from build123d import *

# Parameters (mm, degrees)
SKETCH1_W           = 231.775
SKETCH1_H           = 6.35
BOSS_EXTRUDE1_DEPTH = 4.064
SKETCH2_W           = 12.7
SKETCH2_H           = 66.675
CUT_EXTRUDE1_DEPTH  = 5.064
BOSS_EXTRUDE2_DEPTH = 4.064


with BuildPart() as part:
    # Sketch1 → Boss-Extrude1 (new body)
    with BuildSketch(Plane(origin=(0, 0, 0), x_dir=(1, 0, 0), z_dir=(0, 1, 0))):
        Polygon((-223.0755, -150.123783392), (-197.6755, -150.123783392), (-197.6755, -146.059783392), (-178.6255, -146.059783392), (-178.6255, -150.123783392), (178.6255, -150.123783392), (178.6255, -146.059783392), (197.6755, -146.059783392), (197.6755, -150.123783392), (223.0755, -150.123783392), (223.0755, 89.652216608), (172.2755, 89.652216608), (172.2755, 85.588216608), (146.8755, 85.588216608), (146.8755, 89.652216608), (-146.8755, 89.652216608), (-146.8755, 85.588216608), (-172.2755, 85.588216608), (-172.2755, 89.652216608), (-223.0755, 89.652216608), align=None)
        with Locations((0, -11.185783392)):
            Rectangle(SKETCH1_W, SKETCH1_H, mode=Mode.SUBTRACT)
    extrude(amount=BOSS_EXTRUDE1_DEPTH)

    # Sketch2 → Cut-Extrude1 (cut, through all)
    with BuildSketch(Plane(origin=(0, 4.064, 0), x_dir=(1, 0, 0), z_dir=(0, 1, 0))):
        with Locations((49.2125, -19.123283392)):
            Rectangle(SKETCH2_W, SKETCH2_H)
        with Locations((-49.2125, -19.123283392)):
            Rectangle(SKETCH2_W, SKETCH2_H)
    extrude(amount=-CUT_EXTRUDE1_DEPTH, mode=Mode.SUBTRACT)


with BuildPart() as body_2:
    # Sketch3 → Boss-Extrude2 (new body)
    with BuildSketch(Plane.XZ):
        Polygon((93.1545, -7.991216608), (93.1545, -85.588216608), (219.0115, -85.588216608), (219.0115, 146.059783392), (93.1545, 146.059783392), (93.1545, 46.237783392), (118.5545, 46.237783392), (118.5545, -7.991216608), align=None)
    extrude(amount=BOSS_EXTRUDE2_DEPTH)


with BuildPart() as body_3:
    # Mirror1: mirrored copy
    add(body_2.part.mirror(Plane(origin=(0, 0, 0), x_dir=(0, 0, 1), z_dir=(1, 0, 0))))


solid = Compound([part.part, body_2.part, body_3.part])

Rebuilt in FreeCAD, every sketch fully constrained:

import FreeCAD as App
import Part
import Sketcher

V = App.Vector
Q = App.Units.Quantity

doc = App.newDocument("Part")
body = doc.addObject("PartDesign::Body", "Body")

# Sketch on XZ plane
sketch1 = doc.addObject("Sketcher::SketchObject", "Sketch")
body.addObject(sketch1)
sketch1.AttachmentSupport = (doc.XZ_Plane, [""])
sketch1.MapMode = "FlatFace"
sketch1.addGeometry(Part.LineSegment(V(-223.1, 150.1, 0), V(-197.7, 150.1, 0)), False)
sketch1.addGeometry(Part.LineSegment(V(-197.7, 150.1, 0), V(-197.7, 146.1, 0)), False)
sketch1.addGeometry(Part.LineSegment(V(-197.7, 146.1, 0), V(-178.6, 146.1, 0)), False)
sketch1.addGeometry(Part.LineSegment(V(-178.6, 146.1, 0), V(-178.6, 150.1, 0)), False)
sketch1.addGeometry(Part.LineSegment(V(-178.6, 150.1, 0), V(178.6, 150.1, 0)), False)
sketch1.addGeometry(Part.LineSegment(V(178.6, 150.1, 0), V(178.6, 146.1, 0)), False)
sketch1.addGeometry(Part.LineSegment(V(178.6, 146.1, 0), V(197.7, 146.1, 0)), False)
sketch1.addGeometry(Part.LineSegment(V(197.7, 146.1, 0), V(197.7, 150.1, 0)), False)
sketch1.addGeometry(Part.LineSegment(V(197.7, 150.1, 0), V(223.1, 150.1, 0)), False)
sketch1.addGeometry(Part.LineSegment(V(223.1, 150.1, 0), V(223.1, -89.7, 0)), False)
sketch1.addGeometry(Part.LineSegment(V(223.1, -89.7, 0), V(172.3, -89.7, 0)), False)
sketch1.addGeometry(Part.LineSegment(V(172.3, -89.7, 0), V(172.3, -85.6, 0)), False)
sketch1.addGeometry(Part.LineSegment(V(172.3, -85.6, 0), V(146.9, -85.6, 0)), False)
sketch1.addGeometry(Part.LineSegment(V(146.9, -85.6, 0), V(146.9, -89.7, 0)), False)
sketch1.addGeometry(Part.LineSegment(V(146.9, -89.7, 0), V(-146.9, -89.7, 0)), False)
sketch1.addGeometry(Part.LineSegment(V(-146.9, -89.7, 0), V(-146.9, -85.6, 0)), False)
sketch1.addGeometry(Part.LineSegment(V(-146.9, -85.6, 0), V(-172.3, -85.6, 0)), False)
sketch1.addGeometry(Part.LineSegment(V(-172.3, -85.6, 0), V(-172.3, -89.7, 0)), False)
sketch1.addGeometry(Part.LineSegment(V(-172.3, -89.7, 0), V(-223.1, -89.7, 0)), False)
sketch1.addGeometry(Part.LineSegment(V(-223.1, -89.7, 0), V(-223.1, 150.1, 0)), False)
sketch1.addGeometry(Part.LineSegment(V(115.9, 14.4, 0), V(-115.9, 14.4, 0)), False)
sketch1.addGeometry(Part.LineSegment(V(-115.9, 14.4, 0), V(-115.9, 8, 0)), False)
sketch1.addGeometry(Part.LineSegment(V(-115.9, 8, 0), V(115.9, 8, 0)), False)
sketch1.addGeometry(Part.LineSegment(V(115.9, 8, 0), V(115.9, 14.4, 0)), False)
sketch1.addConstraint(Sketcher.Constraint("Coincident", 0, 2, 1, 1))
sketch1.addConstraint(Sketcher.Constraint("Coincident", 1, 2, 2, 1))
sketch1.addConstraint(Sketcher.Constraint("Coincident", 2, 2, 3, 1))
sketch1.addConstraint(Sketcher.Constraint("Coincident", 3, 2, 4, 1))
sketch1.addConstraint(Sketcher.Constraint("Coincident", 4, 2, 5, 1))
sketch1.addConstraint(Sketcher.Constraint("Coincident", 5, 2, 6, 1))
sketch1.addConstraint(Sketcher.Constraint("Coincident", 6, 2, 7, 1))
sketch1.addConstraint(Sketcher.Constraint("Coincident", 7, 2, 8, 1))
sketch1.addConstraint(Sketcher.Constraint("Coincident", 8, 2, 9, 1))
sketch1.addConstraint(Sketcher.Constraint("Coincident", 9, 2, 10, 1))
sketch1.addConstraint(Sketcher.Constraint("Coincident", 10, 2, 11, 1))
sketch1.addConstraint(Sketcher.Constraint("Coincident", 11, 2, 12, 1))
sketch1.addConstraint(Sketcher.Constraint("Coincident", 12, 2, 13, 1))
sketch1.addConstraint(Sketcher.Constraint("Coincident", 13, 2, 14, 1))
sketch1.addConstraint(Sketcher.Constraint("Coincident", 14, 2, 15, 1))
sketch1.addConstraint(Sketcher.Constraint("Coincident", 15, 2, 16, 1))
sketch1.addConstraint(Sketcher.Constraint("Coincident", 16, 2, 17, 1))
sketch1.addConstraint(Sketcher.Constraint("Coincident", 17, 2, 18, 1))
sketch1.addConstraint(Sketcher.Constraint("Coincident", 18, 2, 19, 1))
sketch1.addConstraint(Sketcher.Constraint("Coincident", 19, 2, 0, 1))
sketch1.addConstraint(Sketcher.Constraint("Coincident", 20, 2, 21, 1))
sketch1.addConstraint(Sketcher.Constraint("Coincident", 21, 2, 22, 1))
sketch1.addConstraint(Sketcher.Constraint("Coincident", 22, 2, 23, 1))
sketch1.addConstraint(Sketcher.Constraint("Coincident", 23, 2, 20, 1))
sketch1.addConstraint(Sketcher.Constraint("Horizontal", 0))
sketch1.addConstraint(Sketcher.Constraint("Vertical", 1))
sketch1.addConstraint(Sketcher.Constraint("Horizontal", 2))
sketch1.addConstraint(Sketcher.Constraint("Vertical", 3))
sketch1.addConstraint(Sketcher.Constraint("Horizontal", 4))
sketch1.addConstraint(Sketcher.Constraint("Vertical", 5))
sketch1.addConstraint(Sketcher.Constraint("Horizontal", 6))
sketch1.addConstraint(Sketcher.Constraint("Vertical", 7))
sketch1.addConstraint(Sketcher.Constraint("Horizontal", 8))
sketch1.addConstraint(Sketcher.Constraint("Vertical", 9))
sketch1.addConstraint(Sketcher.Constraint("Horizontal", 10))
sketch1.addConstraint(Sketcher.Constraint("Vertical", 11))
sketch1.addConstraint(Sketcher.Constraint("Horizontal", 12))
sketch1.addConstraint(Sketcher.Constraint("Vertical", 13))
sketch1.addConstraint(Sketcher.Constraint("Horizontal", 14))
sketch1.addConstraint(Sketcher.Constraint("Vertical", 15))
sketch1.addConstraint(Sketcher.Constraint("Horizontal", 16))
sketch1.addConstraint(Sketcher.Constraint("Vertical", 17))
sketch1.addConstraint(Sketcher.Constraint("Horizontal", 18))
sketch1.addConstraint(Sketcher.Constraint("Vertical", 19))
sketch1.addConstraint(Sketcher.Constraint("Horizontal", 20))
sketch1.addConstraint(Sketcher.Constraint("Vertical", 21))
sketch1.addConstraint(Sketcher.Constraint("Horizontal", 22))
sketch1.addConstraint(Sketcher.Constraint("Vertical", 23))
sketch1.addConstraint(Sketcher.Constraint("Symmetric", 2, 2, 5, 2, -2))
sketch1.addConstraint(Sketcher.Constraint("Symmetric", 0, 2, 7, 2, -2))
sketch1.addConstraint(Sketcher.Constraint("Symmetric", 12, 2, 15, 2, -2))
sketch1.addConstraint(Sketcher.Constraint("Symmetric", 10, 2, 17, 2, -2))
sketch1.addConstraint(Sketcher.Constraint("Horizontal", 0, 2, 3, 2))
sketch1.addConstraint(Sketcher.Constraint("Horizontal", 10, 2, 13, 2))
sketch1.addConstraint(Sketcher.Constraint("Equal", 0, 8))
sketch1.addConstraint(Sketcher.Constraint("Equal", 8, 12))
sketch1.addConstraint(Sketcher.Constraint("Equal", 7, 11))
sketch1.addConstraint(Sketcher.Constraint("DistanceX", 0, 1, 0, 2, Q("1 in")))
sketch1.addConstraint(Sketcher.Constraint("DistanceX", 10, 2, 10, 1, Q("2 in")))
sketch1.addConstraint(Sketcher.Constraint("DistanceX", 2, 1, 2, 2, Q("0.75 in")))
sketch1.addConstraint(Sketcher.Constraint("DistanceY", 1, 2, 1, 1, Q("0.16 in")))
sketch1.addConstraint(Sketcher.Constraint("DistanceY", 9, 2, 9, 1, Q("9.44 in")))
sketch1.addConstraint(Sketcher.Constraint("DistanceY", 21, 2, 21, 1, Q("0.25 in")))
sketch1.addConstraint(Sketcher.Constraint("DistanceX", 4, 1, 4, 2, Q("14.065 in")))
sketch1.addConstraint(Sketcher.Constraint("DistanceX", 20, 2, 20, 1, Q("9.125 in")))
sketch1.addConstraint(Sketcher.Constraint("DistanceX", 15, 2, 20, 2, Q("1.22 in")))
sketch1.addConstraint(Sketcher.Constraint("DistanceY", 15, 2, 20, 2, Q("3.935 in")))
sketch1.addConstraint(Sketcher.Constraint("DistanceY", -1, 1, 0, 2, 150.123783))
pad1 = doc.addObject("PartDesign::Pad", "Pad")
body.addObject(pad1)
pad1.Profile = sketch1
pad1.Length = Q("0.16 in")
pad1.Reversed = True

# Sketch on XZ plane
sketch2 = doc.addObject("Sketcher::SketchObject", "Sketch001")
body.addObject(sketch2)
sketch2.AttachmentSupport = (doc.XZ_Plane, [""])
sketch2.MapMode = "FlatFace"
sketch2.AttachmentOffset = App.Placement(V(0, 0, -0.16 * 25.4), App.Rotation())
sketch2.addGeometry(Part.LineSegment(V(43, -14, 0), V(43, 52, 0)), False)
sketch2.addGeometry(Part.LineSegment(V(43, 52, 0), V(56, 52, 0)), False)
sketch2.addGeometry(Part.LineSegment(V(56, 52, 0), V(56, -14, 0)), False)
sketch2.addGeometry(Part.LineSegment(V(56, -14, 0), V(43, -14, 0)), False)
sketch2.addGeometry(Part.LineSegment(V(-56, -14, 0), V(-56, 52, 0)), False)
sketch2.addGeometry(Part.LineSegment(V(-56, 52, 0), V(-43, 52, 0)), False)
sketch2.addGeometry(Part.LineSegment(V(-43, 52, 0), V(-43, -14, 0)), False)
sketch2.addGeometry(Part.LineSegment(V(-43, -14, 0), V(-56, -14, 0)), False)
sketch2.addConstraint(Sketcher.Constraint("Coincident", 0, 2, 1, 1))
sketch2.addConstraint(Sketcher.Constraint("Coincident", 1, 2, 2, 1))
sketch2.addConstraint(Sketcher.Constraint("Coincident", 2, 2, 3, 1))
sketch2.addConstraint(Sketcher.Constraint("Coincident", 3, 2, 0, 1))
sketch2.addConstraint(Sketcher.Constraint("Coincident", 4, 2, 5, 1))
sketch2.addConstraint(Sketcher.Constraint("Coincident", 5, 2, 6, 1))
sketch2.addConstraint(Sketcher.Constraint("Coincident", 6, 2, 7, 1))
sketch2.addConstraint(Sketcher.Constraint("Coincident", 7, 2, 4, 1))
sketch2.addConstraint(Sketcher.Constraint("Vertical", 0))
sketch2.addConstraint(Sketcher.Constraint("Horizontal", 1))
sketch2.addConstraint(Sketcher.Constraint("Vertical", 2))
sketch2.addConstraint(Sketcher.Constraint("Horizontal", 3))
sketch2.addConstraint(Sketcher.Constraint("Vertical", 4))
sketch2.addConstraint(Sketcher.Constraint("Horizontal", 5))
sketch2.addConstraint(Sketcher.Constraint("Vertical", 6))
sketch2.addConstraint(Sketcher.Constraint("Horizontal", 7))
sketch2.addConstraint(Sketcher.Constraint("Symmetric", 1, 2, 4, 2, -2))
sketch2.addConstraint(Sketcher.Constraint("Symmetric", 3, 2, 6, 2, -2))
sketch2.addConstraint(Sketcher.Constraint("DistanceX", 1, 1, 1, 2, Q("0.5 in")))
sketch2.addConstraint(Sketcher.Constraint("DistanceY", 0, 1, 0, 2, Q("2.625 in")))
sketch2.addConstraint(Sketcher.Constraint("DistanceX", -1, 1, 0, 2, Q("1.6875 in")))
sketch2.addConstraint(Sketcher.Constraint("DistanceY", -1, 1, 0, 2, 52.460783))
pocket1 = doc.addObject("PartDesign::Pocket", "Pocket")
body.addObject(pocket1)
pocket1.Profile = sketch2
pocket1.Type = "ThroughAll"
pocket1.Reversed = True
body2 = doc.addObject("PartDesign::Body", "Body001")

# Sketch on XZ plane
sketch3 = doc.addObject("Sketcher::SketchObject", "Sketch002")
body2.addObject(sketch3)
sketch3.AttachmentSupport = (doc.getObject("XZ_Plane001"), [""])
sketch3.MapMode = "FlatFace"
sketch3.addGeometry(Part.LineSegment(V(93, -8, 0), V(93, -86, 0)), False)
sketch3.addGeometry(Part.LineSegment(V(93, -86, 0), V(219, -86, 0)), False)
sketch3.addGeometry(Part.LineSegment(V(219, -86, 0), V(219, 146, 0)), False)
sketch3.addGeometry(Part.LineSegment(V(219, 146, 0), V(93, 146, 0)), False)
sketch3.addGeometry(Part.LineSegment(V(93, 146, 0), V(93, 46, 0)), False)
sketch3.addGeometry(Part.LineSegment(V(93, 46, 0), V(119, 46, 0)), False)
sketch3.addGeometry(Part.LineSegment(V(119, 46, 0), V(119, -8, 0)), False)
sketch3.addGeometry(Part.LineSegment(V(119, -8, 0), V(93, -8, 0)), False)
sketch3.addConstraint(Sketcher.Constraint("Coincident", 0, 2, 1, 1))
sketch3.addConstraint(Sketcher.Constraint("Coincident", 1, 2, 2, 1))
sketch3.addConstraint(Sketcher.Constraint("Coincident", 2, 2, 3, 1))
sketch3.addConstraint(Sketcher.Constraint("Coincident", 3, 2, 4, 1))
sketch3.addConstraint(Sketcher.Constraint("Coincident", 4, 2, 5, 1))
sketch3.addConstraint(Sketcher.Constraint("Coincident", 5, 2, 6, 1))
sketch3.addConstraint(Sketcher.Constraint("Coincident", 6, 2, 7, 1))
sketch3.addConstraint(Sketcher.Constraint("Coincident", 7, 2, 0, 1))
sketch3.addConstraint(Sketcher.Constraint("Vertical", 0))
sketch3.addConstraint(Sketcher.Constraint("Horizontal", 1))
sketch3.addConstraint(Sketcher.Constraint("Vertical", 2))
sketch3.addConstraint(Sketcher.Constraint("Horizontal", 3))
sketch3.addConstraint(Sketcher.Constraint("Vertical", 4))
sketch3.addConstraint(Sketcher.Constraint("Horizontal", 5))
sketch3.addConstraint(Sketcher.Constraint("Vertical", 6))
sketch3.addConstraint(Sketcher.Constraint("Horizontal", 7))
sketch3.addConstraint(Sketcher.Constraint("Vertical", 0, 2, 3, 2))
sketch3.addConstraint(Sketcher.Constraint("DistanceX", 5, 1, 5, 2, Q("1 in")))
sketch3.addConstraint(Sketcher.Constraint("DistanceY", 2, 1, 2, 2, Q("9.12 in")))
sketch3.addConstraint(Sketcher.Constraint("DistanceY", 4, 2, 4, 1, Q("3.93 in")))
sketch3.addConstraint(Sketcher.Constraint("DistanceX", 1, 1, 1, 2, Q("4.955 in")))
sketch3.addConstraint(Sketcher.Constraint("DistanceY", 0, 2, 0, 1, Q("3.055 in")))
sketch3.addConstraint(Sketcher.Constraint("DistanceX", -1, 1, 0, 2, Q("3.6675 in")))
sketch3.addConstraint(Sketcher.Constraint("DistanceY", 0, 2, -1, 1, 85.588217))
pad2 = doc.addObject("PartDesign::Pad", "Pad001")
body2.addObject(pad2)
pad2.Profile = sketch3
pad2.Length = Q("0.16 in")
body3 = doc.addObject("PartDesign::Body", "Body002")
doc.recompute()

mirroring = doc.addObject("Part::Mirroring", "Mirroring")
mirroring.Source = body2
mirroring.Base = V(0, 0, 0)
mirroring.Normal = V(1, 0, 0)
body3.BaseFeature = mirroring
doc.recompute()
mirroring.Visibility = False

doc.recompute()
